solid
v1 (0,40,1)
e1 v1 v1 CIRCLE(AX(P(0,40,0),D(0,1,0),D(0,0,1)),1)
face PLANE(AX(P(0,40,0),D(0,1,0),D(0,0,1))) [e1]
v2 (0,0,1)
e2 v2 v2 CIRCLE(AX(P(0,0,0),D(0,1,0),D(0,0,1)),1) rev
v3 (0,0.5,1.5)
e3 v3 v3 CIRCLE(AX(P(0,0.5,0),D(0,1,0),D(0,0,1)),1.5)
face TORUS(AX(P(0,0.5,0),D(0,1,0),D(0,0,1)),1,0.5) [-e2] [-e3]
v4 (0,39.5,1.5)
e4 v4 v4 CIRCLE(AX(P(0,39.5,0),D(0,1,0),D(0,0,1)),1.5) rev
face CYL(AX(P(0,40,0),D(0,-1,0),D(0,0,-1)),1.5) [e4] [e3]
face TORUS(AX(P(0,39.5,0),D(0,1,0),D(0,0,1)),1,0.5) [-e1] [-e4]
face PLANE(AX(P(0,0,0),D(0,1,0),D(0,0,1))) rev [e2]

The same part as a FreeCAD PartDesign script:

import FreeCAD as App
import Part
import Sketcher
from FreeCAD import Vector


def edges_at(feature, points):
    """Names of the edges that pass closest to the given points."""
    edges = feature.Shape.Edges
    near = lambda p: min(range(len(edges)), key=lambda i: edges[i].distToShape(Part.Vertex(*p))[0])
    return sorted({f"Edge{near(p) + 1}" for p in points})

doc = App.newDocument("Part")
body = doc.addObject("PartDesign::Body", "Body")

sketch1 = doc.addObject("Sketcher::SketchObject", "Sketch")
body.addObject(sketch1)
sketch1.AttachmentSupport = (doc.XZ_Plane, [""])
sketch1.MapMode = "FlatFace"
sketch1.addGeometry(Part.Circle(Vector(0, 0, 0), Vector(0, 0, 1), 1.5), False)
sketch1.addConstraint([
    Sketcher.Constraint("Coincident", 0, 3, -1, 1),
    Sketcher.Constraint("Diameter", 0, 3.0),
])
pad1 = doc.addObject("PartDesign::Pad", "Pad")
body.addObject(pad1)
pad1.Profile = sketch1
pad1.Length = 40
pad1.Reversed = True
doc.recompute()

fillet = doc.addObject("PartDesign::Fillet", "Fillet")
body.addObject(fillet)
fillet.Base = (pad1, edges_at(pad1, [(-1.5, 0, 0), (-1.5, 40, 0)]))
fillet.Radius = 0.5

doc.recompute()
